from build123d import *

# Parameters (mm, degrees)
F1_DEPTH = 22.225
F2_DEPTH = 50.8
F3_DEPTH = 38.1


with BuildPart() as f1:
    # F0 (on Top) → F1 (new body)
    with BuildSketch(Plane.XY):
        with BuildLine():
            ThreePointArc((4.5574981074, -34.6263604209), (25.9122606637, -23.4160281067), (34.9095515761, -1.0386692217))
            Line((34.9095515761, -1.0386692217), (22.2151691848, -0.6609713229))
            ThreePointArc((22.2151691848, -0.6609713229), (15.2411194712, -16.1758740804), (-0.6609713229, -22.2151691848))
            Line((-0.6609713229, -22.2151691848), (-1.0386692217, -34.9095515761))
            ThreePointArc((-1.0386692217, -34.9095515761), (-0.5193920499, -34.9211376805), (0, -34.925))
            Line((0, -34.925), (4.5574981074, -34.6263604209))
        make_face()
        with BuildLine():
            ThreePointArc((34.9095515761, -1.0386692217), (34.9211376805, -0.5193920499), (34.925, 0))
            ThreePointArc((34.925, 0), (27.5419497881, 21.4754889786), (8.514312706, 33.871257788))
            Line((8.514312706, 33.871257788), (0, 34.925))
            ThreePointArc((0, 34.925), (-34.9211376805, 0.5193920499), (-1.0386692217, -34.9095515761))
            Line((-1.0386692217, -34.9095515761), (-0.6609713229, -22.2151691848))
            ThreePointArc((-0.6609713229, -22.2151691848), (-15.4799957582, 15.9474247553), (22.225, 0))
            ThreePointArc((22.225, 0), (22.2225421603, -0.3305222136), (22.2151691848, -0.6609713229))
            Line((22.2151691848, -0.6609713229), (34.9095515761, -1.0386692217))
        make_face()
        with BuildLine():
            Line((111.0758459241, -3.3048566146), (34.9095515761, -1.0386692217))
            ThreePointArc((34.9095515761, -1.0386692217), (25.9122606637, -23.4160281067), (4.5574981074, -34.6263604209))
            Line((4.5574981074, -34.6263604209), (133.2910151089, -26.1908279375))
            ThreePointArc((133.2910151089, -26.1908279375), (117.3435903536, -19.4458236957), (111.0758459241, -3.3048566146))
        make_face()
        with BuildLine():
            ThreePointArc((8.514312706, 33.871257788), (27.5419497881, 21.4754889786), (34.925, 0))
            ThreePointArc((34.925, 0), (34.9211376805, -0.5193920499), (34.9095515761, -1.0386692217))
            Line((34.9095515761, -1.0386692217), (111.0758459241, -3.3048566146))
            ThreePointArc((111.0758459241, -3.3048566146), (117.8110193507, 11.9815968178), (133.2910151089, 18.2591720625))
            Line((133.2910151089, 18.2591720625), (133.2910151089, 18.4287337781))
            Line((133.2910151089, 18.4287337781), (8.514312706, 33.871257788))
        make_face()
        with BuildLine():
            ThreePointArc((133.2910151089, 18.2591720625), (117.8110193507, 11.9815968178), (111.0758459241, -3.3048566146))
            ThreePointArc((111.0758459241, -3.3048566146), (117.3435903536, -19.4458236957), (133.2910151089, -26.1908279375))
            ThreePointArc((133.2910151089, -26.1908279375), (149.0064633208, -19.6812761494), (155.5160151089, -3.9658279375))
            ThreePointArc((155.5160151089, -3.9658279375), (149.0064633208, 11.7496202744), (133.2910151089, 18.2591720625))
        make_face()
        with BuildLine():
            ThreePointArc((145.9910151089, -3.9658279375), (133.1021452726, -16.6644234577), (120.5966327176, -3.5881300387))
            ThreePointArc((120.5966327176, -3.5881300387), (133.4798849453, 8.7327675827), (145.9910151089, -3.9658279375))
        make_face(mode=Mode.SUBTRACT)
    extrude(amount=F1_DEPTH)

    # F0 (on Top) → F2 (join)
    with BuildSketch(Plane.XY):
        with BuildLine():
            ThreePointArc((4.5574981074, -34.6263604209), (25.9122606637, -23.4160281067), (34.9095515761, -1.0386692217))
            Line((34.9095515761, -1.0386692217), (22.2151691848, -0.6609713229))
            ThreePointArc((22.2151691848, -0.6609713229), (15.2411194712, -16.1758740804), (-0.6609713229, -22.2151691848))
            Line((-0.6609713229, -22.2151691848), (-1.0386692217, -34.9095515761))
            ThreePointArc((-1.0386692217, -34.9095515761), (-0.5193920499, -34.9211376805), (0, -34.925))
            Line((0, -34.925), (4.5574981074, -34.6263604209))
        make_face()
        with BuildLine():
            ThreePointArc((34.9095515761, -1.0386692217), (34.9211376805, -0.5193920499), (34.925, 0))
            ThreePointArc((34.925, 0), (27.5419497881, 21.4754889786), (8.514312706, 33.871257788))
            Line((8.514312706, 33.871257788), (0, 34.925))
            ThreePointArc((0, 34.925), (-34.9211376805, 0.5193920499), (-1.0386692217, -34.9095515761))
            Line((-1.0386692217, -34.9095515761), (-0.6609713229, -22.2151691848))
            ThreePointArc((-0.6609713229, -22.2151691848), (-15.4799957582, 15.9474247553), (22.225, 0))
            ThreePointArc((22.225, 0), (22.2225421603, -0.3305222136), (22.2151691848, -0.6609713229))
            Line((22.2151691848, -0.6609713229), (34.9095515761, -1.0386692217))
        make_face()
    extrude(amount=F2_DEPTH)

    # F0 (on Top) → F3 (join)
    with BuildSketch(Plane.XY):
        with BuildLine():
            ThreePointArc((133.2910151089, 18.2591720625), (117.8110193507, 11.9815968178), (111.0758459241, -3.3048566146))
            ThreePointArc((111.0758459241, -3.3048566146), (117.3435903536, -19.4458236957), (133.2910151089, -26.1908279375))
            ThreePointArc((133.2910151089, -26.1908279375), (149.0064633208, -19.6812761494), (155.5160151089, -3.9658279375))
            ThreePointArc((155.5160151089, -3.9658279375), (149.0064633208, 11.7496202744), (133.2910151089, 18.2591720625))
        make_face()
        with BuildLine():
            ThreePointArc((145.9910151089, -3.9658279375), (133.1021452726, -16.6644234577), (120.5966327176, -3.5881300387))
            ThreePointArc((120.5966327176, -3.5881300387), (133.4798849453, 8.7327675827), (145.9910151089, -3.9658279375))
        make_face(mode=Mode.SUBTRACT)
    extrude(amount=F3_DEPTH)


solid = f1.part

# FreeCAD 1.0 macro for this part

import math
import FreeCAD as App
import Part
import Sketcher
from FreeCAD import Vector
Q = App.Units.Quantity

doc = App.newDocument("Part")
params = doc.addObject("Spreadsheet::Sheet", "Params")
for row, (alias, value) in enumerate([
    ("sketch1_radius", "0.5 in"),
    ("sketch1_radius2", "1.375 in"),
    ("sketch1_radius3", "0.875 in"),
    ("pad1_length", "0.875 in"),
    ("sketch2_radius", "1.375 in"),
    ("sketch2_radius2", "0.875 in"),
    ("pad2_length", "2 in"),
    ("sketch3_radius", "0.5 in"),
    ("sketch3_radius2", "0.875 in"),
    ("pad3_length", "1.5 in"),
], start=1):
    params.set(f"A{row}", alias)
    params.set(f"B{row}", "=" + value)
    params.setAlias(f"B{row}", alias)

body = doc.addObject("PartDesign::Body", "Body")

sketch1 = doc.addObject("Sketcher::SketchObject", "Sketch")
body.addObject(sketch1)
sketch1.AttachmentSupport = (doc.XY_Plane, [""])
sketch1.MapMode = "FlatFace"
sketch1.addGeometry([
    Part.LineSegment(Vector(8.51, 33.87, 0), Vector(0, 34.92, 0)),
    Part.ArcOfCircle(Part.Circle(Vector(0, 0, 0), Vector(0, 0, 1), 34.92), math.radians(90), math.radians(268)),
    Part.ArcOfCircle(Part.Circle(Vector(0, 0, 0), Vector(0, 0, 1), 34.92), math.radians(-91.7), math.radians(-90)),
    Part.LineSegment(Vector(0, -34.92, 0), Vector(4.56, -34.63, 0)),
    Part.LineSegment(Vector(4.56, -34.63, 0), Vector(133.29, -26.19, 0)),
    Part.ArcOfCircle(Part.Circle(Vector(133.29, -3.97, 0), Vector(0, 0, 1), 22.23), math.radians(-90), math.radians(0)),
    Part.ArcOfCircle(Part.Circle(Vector(133.29, -3.97, 0), Vector(0, 0, 1), 22.23), math.radians(0), math.radians(90)),
    Part.LineSegment(Vector(133.29, 18.26, 0), Vector(133.29, 18.43, 0)),
    Part.LineSegment(Vector(133.29, 18.43, 0), Vector(8.51, 33.87, 0)),
    Part.ArcOfCircle(Part.Circle(Vector(133.29, -3.97, 0), Vector(0, 0, 1), 12.7), math.radians(0), math.radians(178)),
    Part.ArcOfCircle(Part.Circle(Vector(133.29, -3.97, 0), Vector(0, 0, 1), 12.7), math.radians(178), math.radians(360)),
    Part.ArcOfCircle(Part.Circle(Vector(0, 0, 0), Vector(0, 0, 1), 22.23), math.radians(-92), math.radians(-2)),
    Part.ArcOfCircle(Part.Circle(Vector(0, 0, 0), Vector(0, 0, 1), 22.23), math.radians(0), math.radians(268)),
    Part.ArcOfCircle(Part.Circle(Vector(0, 0, 0), Vector(0, 0, 1), 22.22), math.radians(-1.7), math.radians(0)),
], False)
sketch1.addConstraint([
    Sketcher.Constraint("Coincident", 0, 2, 1, 1),
    Sketcher.Constraint("Tangent", 1, 2, 2, 1),
    Sketcher.Constraint("Coincident", 2, 2, 3, 1),
    Sketcher.Constraint("Coincident", 3, 2, 4, 1),
    Sketcher.Constraint("Coincident", 4, 2, 5, 1),
    Sketcher.Constraint("Tangent", 5, 2, 6, 1),
    Sketcher.Constraint("Coincident", 6, 2, 7, 1),
    Sketcher.Constraint("Coincident", 7, 2, 8, 1),
    Sketcher.Constraint("Coincident", 8, 2, 0, 1),
    Sketcher.Constraint("Tangent", 9, 1, 10, 2),
    Sketcher.Constraint("Coincident", 10, 1, 9, 2),
    Sketcher.Constraint("Tangent", 11, 1, 12, 2),
    Sketcher.Constraint("Tangent", 12, 1, 13, 2),
    Sketcher.Constraint("Coincident", 13, 1, 11, 2),
    Sketcher.Constraint("Vertical", 7),
    Sketcher.Constraint("Coincident", 1, 3, -1, 1),
    Sketcher.Constraint("Coincident", 11, 3, -1, 1),
    Sketcher.Constraint("Coincident", 9, 3, 5, 3),
    Sketcher.Constraint("Equal", 1, 2),
    Sketcher.Constraint("Equal", 5, 6),
    Sketcher.Constraint("Equal", 6, 11),
    Sketcher.Constraint("Equal", 12, 13),
    Sketcher.Constraint("PointOnObject", 0, 2, -2),
    Sketcher.Constraint("PointOnObject", 2, 2, -2),
    Sketcher.Constraint("PointOnObject", 12, 1, -1),
    Sketcher.Constraint("Parallel", 3, 4),
    Sketcher.Constraint("Parallel", 0, 8),
    Sketcher.Constraint("Horizontal", 10, 3, 5, 2),
    Sketcher.Constraint("Horizontal", 5, 2, 9, 1),
    Sketcher.Constraint("Vertical", 10, 3, 4, 2),
    Sketcher.Constraint("Vertical", 4, 2, 6, 2),
    Sketcher.Constraint("Radius", 9, Q("0.5 in")),
    Sketcher.Constraint("Radius", 1, Q("1.375 in")),
    Sketcher.Constraint("Radius", 5, Q("0.875 in")),
    Sketcher.Constraint("Distance", 4, 129.009599),
    Sketcher.Constraint("DistanceY", 7, 1, 7, 2, 0.169562),
    Sketcher.Constraint("DistanceX", -1, 1, 3, 2, 4.557498),
    Sketcher.Constraint("Distance", 0, 8.579271),
    Sketcher.Constraint("DistanceX", 1, 2, -1, 1, 1.038669),
    Sketcher.Constraint("DistanceY", 3, 2, -1, 1, 34.62636),
    Sketcher.Constraint("DistanceY", 10, 1, -1, 1, 3.58813),
    Sketcher.Constraint("DistanceX", 11, 1, -1, 1, 0.660971),
    Sketcher.Constraint("DistanceX", -1, 1, 13, 1, 22.215169),
])
sketch1.setExpression("Constraints[31]", "Params.sketch1_radius")
sketch1.setExpression("Constraints[32]", "Params.sketch1_radius2")
sketch1.setExpression("Constraints[33]", "Params.sketch1_radius3")
pad1 = doc.addObject("PartDesign::Pad", "Pad")
body.addObject(pad1)
pad1.Profile = sketch1
pad1.setExpression("Length", "Params.pad1_length")

sketch2 = doc.addObject("Sketcher::SketchObject", "Sketch001")
body.addObject(sketch2)
sketch2.AttachmentSupport = (doc.XY_Plane, [""])
sketch2.MapMode = "FlatFace"
sketch2.addGeometry([
    Part.ArcOfCircle(Part.Circle(Vector(0, 0, 0), Vector(0, 0, 1), 34.9), math.radians(-83), math.radians(-2)),
    Part.ArcOfCircle(Part.Circle(Vector(0, 0, 0), Vector(0, 0, 1), 34.9), math.radians(-1.7), math.radians(0)),
    Part.ArcOfCircle(Part.Circle(Vector(0, 0, 0), Vector(0, 0, 1), 34.9), math.radians(0), math.radians(76)),
    Part.LineSegment(Vector(8.5, 33.9, 0), Vector(0, 34.9, 0)),
    Part.ArcOfCircle(Part.Circle(Vector(0, 0, 0), Vector(0, 0, 1), 34.9), math.radians(90), math.radians(268)),
    Part.ArcOfCircle(Part.Circle(Vector(0, 0, 0), Vector(0, 0, 1), 34.9), math.radians(-91.7), math.radians(-90)),
    Part.LineSegment(Vector(0, -34.9, 0), Vector(4.6, -34.6, 0)),
    Part.ArcOfCircle(Part.Circle(Vector(0, 0, 0), Vector(0, 0, 1), 22.2), math.radians(-92), math.radians(-2)),
    Part.ArcOfCircle(Part.Circle(Vector(0, 0, 0), Vector(0, 0, 1), 22.2), math.radians(0), math.radians(268)),
    Part.ArcOfCircle(Part.Circle(Vector(0, 0, 0), Vector(0, 0, 1), 22.2), math.radians(-1.7), math.radians(0)),
], False)
sketch2.addConstraint([
    Sketcher.Constraint("Tangent", 0, 2, 1, 1),
    Sketcher.Constraint("Tangent", 1, 2, 2, 1),
    Sketcher.Constraint("Coincident", 2, 2, 3, 1),
    Sketcher.Constraint("Coincident", 3, 2, 4, 1),
    Sketcher.Constraint("Tangent", 4, 2, 5, 1),
    Sketcher.Constraint("Coincident", 5, 2, 6, 1),
    Sketcher.Constraint("Coincident", 6, 2, 0, 1),
    Sketcher.Constraint("Tangent", 7, 1, 8, 2),
    Sketcher.Constraint("Tangent", 8, 1, 9, 2),
    Sketcher.Constraint("Coincident", 9, 1, 7, 2),
    Sketcher.Constraint("Coincident", 0, 3, -1, 1),
    Sketcher.Constraint("Coincident", 2, 3, -1, 1),
    Sketcher.Constraint("Coincident", 4, 3, -1, 1),
    Sketcher.Constraint("Coincident", 7, 3, -1, 1),
    Sketcher.Constraint("Equal", 2, 4),
    Sketcher.Constraint("Equal", 4, 5),
    Sketcher.Constraint("Equal", 8, 9),
    Sketcher.Constraint("PointOnObject", 1, 2, -1),
    Sketcher.Constraint("PointOnObject", 3, 2, -2),
    Sketcher.Constraint("PointOnObject", 5, 2, -2),
    Sketcher.Constraint("PointOnObject", 8, 1, -1),
    Sketcher.Constraint("Radius", 0, Q("1.375 in")),
    Sketcher.Constraint("Radius", 7, Q("0.875 in")),
    Sketcher.Constraint("DistanceX", -1, 1, 6, 2, 4.557498),
    Sketcher.Constraint("Distance", 3, 8.579271),
    Sketcher.Constraint("DistanceX", -1, 1, 0, 2, 34.909552),
    Sketcher.Constraint("DistanceX", 4, 2, -1, 1, 1.038669),
    Sketcher.Constraint("DistanceX", 7, 1, -1, 1, 0.660971),
    Sketcher.Constraint("DistanceX", -1, 1, 9, 1, 22.215169),
])
sketch2.setExpression("Constraints[21]", "Params.sketch2_radius")
sketch2.setExpression("Constraints[22]", "Params.sketch2_radius2")
pad2 = doc.addObject("PartDesign::Pad", "Pad001")
body.addObject(pad2)
pad2.Profile = sketch2
pad2.setExpression("Length", "Params.pad2_length")

sketch3 = doc.addObject("Sketcher::SketchObject", "Sketch002")
body.addObject(sketch3)
sketch3.AttachmentSupport = (doc.XY_Plane, [""])
sketch3.MapMode = "FlatFace"
sketch3.addGeometry([
    Part.ArcOfCircle(Part.Circle(Vector(133, -4, 0), Vector(0, 0, 1), 22), math.radians(90), math.radians(178)),
    Part.ArcOfCircle(Part.Circle(Vector(133, -4, 0), Vector(0, 0, 1), 22), math.radians(178), math.radians(270)),
    Part.ArcOfCircle(Part.Circle(Vector(133, -4, 0), Vector(0, 0, 1), 22), math.radians(-90), math.radians(0)),
    Part.ArcOfCircle(Part.Circle(Vector(133, -4, 0), Vector(0, 0, 1), 22), math.radians(0), math.radians(90)),
    Part.ArcOfCircle(Part.Circle(Vector(133, -4, 0), Vector(0, 0, 1), 13), math.radians(0), math.radians(178)),
    Part.ArcOfCircle(Part.Circle(Vector(133, -4, 0), Vector(0, 0, 1), 13), math.radians(178), math.radians(360)),
], False)
sketch3.addConstraint([
    Sketcher.Constraint("Tangent", 0, 2, 1, 1),
    Sketcher.Constraint("Tangent", 1, 2, 2, 1),
    Sketcher.Constraint("Tangent", 2, 2, 3, 1),
    Sketcher.Constraint("Tangent", 3, 2, 0, 1),
    Sketcher.Constraint("Tangent", 4, 1, 5, 2),
    Sketcher.Constraint("Coincident", 5, 1, 4, 2),
    Sketcher.Constraint("Coincident", 4, 3, 0, 3),
    Sketcher.Constraint("Equal", 0, 1),
    Sketcher.Constraint("Horizontal", 5, 3, 2, 2),
    Sketcher.Constraint("Horizontal", 2, 2, 4, 1),
    Sketcher.Constraint("Vertical", 5, 3, 1, 2),
    Sketcher.Constraint("Vertical", 1, 2, 3, 2),
    Sketcher.Constraint("Radius", 4, Q("0.5 in")),
    Sketcher.Constraint("Radius", 0, Q("0.875 in")),
    Sketcher.Constraint("DistanceY", 5, 1, -1, 1, 3.58813),
    Sketcher.Constraint("DistanceX", 0, 2, 0, 3, 22.215169),
    Sketcher.Constraint("DistanceX", -1, 1, 0, 3, 133.291015),
    Sketcher.Constraint("DistanceY", 0, 3, -1, 1, 3.965828),
])
sketch3.setExpression("Constraints[12]", "Params.sketch3_radius")
sketch3.setExpression("Constraints[13]", "Params.sketch3_radius2")
pad3 = doc.addObject("PartDesign::Pad", "Pad002")
body.addObject(pad3)
pad3.Profile = sketch3
pad3.setExpression("Length", "Params.pad3_length")

doc.recompute()
